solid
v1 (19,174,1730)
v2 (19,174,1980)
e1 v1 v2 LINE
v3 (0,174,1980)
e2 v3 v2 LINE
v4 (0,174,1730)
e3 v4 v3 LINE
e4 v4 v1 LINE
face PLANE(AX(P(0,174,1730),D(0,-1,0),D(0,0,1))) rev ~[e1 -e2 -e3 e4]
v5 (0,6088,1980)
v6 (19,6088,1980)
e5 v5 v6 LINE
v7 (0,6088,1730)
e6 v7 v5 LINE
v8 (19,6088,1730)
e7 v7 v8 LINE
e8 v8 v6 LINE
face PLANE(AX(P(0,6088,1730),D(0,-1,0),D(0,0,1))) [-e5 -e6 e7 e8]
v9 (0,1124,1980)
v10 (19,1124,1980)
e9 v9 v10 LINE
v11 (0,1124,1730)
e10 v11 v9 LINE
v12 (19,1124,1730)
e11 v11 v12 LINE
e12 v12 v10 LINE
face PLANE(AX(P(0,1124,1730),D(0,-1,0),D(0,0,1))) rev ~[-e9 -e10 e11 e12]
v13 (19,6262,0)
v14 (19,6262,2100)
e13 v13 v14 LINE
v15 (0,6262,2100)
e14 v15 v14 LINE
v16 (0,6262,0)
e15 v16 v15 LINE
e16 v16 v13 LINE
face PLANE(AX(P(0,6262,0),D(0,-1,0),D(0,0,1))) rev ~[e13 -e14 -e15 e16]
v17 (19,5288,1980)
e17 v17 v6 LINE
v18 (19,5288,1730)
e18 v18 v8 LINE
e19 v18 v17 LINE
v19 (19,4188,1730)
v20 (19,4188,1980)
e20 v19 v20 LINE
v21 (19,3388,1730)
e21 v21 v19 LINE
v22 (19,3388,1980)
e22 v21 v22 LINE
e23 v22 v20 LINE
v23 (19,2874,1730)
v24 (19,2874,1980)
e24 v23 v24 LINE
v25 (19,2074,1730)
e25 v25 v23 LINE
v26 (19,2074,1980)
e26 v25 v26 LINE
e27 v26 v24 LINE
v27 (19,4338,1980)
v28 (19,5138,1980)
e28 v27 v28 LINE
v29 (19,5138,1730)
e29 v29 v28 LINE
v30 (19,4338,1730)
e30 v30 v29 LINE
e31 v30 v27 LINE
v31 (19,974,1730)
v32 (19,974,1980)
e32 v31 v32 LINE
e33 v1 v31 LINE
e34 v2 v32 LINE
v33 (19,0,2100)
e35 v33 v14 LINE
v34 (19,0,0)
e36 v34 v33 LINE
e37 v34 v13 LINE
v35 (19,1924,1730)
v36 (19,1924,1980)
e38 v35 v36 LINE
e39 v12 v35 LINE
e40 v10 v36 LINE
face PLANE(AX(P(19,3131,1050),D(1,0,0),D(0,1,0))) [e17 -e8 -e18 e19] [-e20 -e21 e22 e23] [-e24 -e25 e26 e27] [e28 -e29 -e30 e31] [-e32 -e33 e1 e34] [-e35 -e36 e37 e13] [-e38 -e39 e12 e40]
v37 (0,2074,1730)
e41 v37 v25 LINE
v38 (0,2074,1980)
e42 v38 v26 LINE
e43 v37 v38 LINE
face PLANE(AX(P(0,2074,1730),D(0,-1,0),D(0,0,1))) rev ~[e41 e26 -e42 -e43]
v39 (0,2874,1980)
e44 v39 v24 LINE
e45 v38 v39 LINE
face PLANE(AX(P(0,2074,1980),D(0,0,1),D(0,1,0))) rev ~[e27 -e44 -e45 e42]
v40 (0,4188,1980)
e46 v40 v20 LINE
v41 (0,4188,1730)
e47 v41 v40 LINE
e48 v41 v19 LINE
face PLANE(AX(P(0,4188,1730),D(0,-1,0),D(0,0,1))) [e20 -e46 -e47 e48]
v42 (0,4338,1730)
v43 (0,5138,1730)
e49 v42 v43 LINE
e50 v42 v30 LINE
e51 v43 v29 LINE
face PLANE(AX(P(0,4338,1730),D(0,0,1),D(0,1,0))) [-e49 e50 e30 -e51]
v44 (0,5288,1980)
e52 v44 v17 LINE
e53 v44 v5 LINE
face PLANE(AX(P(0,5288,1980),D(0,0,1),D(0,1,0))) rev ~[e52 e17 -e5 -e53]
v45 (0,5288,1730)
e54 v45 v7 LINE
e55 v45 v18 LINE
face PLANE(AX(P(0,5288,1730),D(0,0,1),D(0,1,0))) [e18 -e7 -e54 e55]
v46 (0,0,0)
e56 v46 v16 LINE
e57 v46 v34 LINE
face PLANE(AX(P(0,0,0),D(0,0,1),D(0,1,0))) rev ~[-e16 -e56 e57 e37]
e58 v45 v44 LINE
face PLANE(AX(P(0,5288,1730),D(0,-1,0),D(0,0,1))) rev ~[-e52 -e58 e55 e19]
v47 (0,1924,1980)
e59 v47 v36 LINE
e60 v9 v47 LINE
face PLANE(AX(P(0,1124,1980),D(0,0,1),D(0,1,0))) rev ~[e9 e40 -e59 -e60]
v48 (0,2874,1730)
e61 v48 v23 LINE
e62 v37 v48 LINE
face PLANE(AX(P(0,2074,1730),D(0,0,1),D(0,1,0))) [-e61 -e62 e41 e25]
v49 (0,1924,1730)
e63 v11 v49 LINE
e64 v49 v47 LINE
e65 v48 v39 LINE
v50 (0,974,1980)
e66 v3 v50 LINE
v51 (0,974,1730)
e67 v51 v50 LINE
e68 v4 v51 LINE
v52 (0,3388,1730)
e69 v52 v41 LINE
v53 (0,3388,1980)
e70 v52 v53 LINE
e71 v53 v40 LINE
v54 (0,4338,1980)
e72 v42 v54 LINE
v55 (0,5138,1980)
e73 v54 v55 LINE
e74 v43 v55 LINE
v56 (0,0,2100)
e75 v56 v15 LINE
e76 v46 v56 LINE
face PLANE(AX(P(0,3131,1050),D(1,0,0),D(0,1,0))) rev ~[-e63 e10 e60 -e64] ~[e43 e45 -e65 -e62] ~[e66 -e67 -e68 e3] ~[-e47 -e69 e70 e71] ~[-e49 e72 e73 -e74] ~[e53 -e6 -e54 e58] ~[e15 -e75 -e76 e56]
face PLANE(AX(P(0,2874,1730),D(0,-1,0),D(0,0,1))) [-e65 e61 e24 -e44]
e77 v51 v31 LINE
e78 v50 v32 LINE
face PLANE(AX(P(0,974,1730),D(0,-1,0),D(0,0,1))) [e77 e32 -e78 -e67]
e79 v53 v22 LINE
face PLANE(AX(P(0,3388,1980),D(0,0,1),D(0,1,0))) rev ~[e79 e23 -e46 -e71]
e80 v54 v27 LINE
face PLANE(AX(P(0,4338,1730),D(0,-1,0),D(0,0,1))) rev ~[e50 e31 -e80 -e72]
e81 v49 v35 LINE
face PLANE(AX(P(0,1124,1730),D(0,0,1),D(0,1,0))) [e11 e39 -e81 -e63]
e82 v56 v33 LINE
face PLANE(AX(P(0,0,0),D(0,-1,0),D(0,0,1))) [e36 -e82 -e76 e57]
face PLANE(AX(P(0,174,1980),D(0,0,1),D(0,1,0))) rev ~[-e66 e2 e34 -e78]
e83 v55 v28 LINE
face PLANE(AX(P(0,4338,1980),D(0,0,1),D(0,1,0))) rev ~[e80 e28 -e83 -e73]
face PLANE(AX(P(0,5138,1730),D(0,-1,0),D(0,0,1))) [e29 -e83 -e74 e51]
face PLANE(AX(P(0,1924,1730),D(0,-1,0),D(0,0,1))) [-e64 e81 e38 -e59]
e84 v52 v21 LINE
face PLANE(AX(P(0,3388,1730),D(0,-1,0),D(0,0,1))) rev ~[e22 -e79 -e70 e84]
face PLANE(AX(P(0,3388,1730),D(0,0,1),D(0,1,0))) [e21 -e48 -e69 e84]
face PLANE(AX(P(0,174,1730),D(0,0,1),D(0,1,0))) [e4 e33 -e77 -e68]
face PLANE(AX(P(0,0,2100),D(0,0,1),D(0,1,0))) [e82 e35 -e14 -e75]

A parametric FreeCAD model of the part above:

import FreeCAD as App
import Part
import Sketcher

V = App.Vector
Q = App.Units.Quantity

doc = App.newDocument("Part")
params = doc.addObject("Spreadsheet::Sheet", "Params")
for row, (alias, value) in enumerate([
    ("sketch1_width", "6262 mm"),
    ("sketch1_width2", "800 mm"),
    ("sketch1_height", "2100 mm"),
    ("sketch1_height2", "250 mm"),
    ("pad1_length", "19 mm"),
], start=1):
    params.set(f"A{row}", alias)
    params.set(f"B{row}", "=" + value)
    params.setAlias(f"B{row}", alias)

body = doc.addObject("PartDesign::Body", "Body")

# Sketch on YZ plane
sketch1 = body.newObject("Sketcher::SketchObject", "Sketch")
sketch1.AttachmentSupport = (doc.getObject("YZ_Plane"), [""])
sketch1.MapMode = "FlatFace"
sketch1.addGeometry([
    Part.LineSegment(V(0, 2100, 0), V(0, 0, 0)),  # 0
    Part.LineSegment(V(0, 0, 0), V(6262, 0, 0)),  # 1
    Part.LineSegment(V(6262, 0, 0), V(6262, 2100, 0)),  # 2
    Part.LineSegment(V(6262, 2100, 0), V(0, 2100, 0)),  # 3
    Part.LineSegment(V(974, 1730, 0), V(174, 1730, 0)),  # 4
    Part.LineSegment(V(174, 1730, 0), V(174, 1980, 0)),  # 5
    Part.LineSegment(V(174, 1980, 0), V(974, 1980, 0)),  # 6
    Part.LineSegment(V(974, 1980, 0), V(974, 1730, 0)),  # 7
    Part.LineSegment(V(1924, 1730, 0), V(1124, 1730, 0)),  # 8
    Part.LineSegment(V(1124, 1730, 0), V(1124, 1980, 0)),  # 9
    Part.LineSegment(V(1124, 1980, 0), V(1924, 1980, 0)),  # 10
    Part.LineSegment(V(1924, 1980, 0), V(1924, 1730, 0)),  # 11
    Part.LineSegment(V(2874, 1730, 0), V(2074, 1730, 0)),  # 12
    Part.LineSegment(V(2074, 1730, 0), V(2074, 1980, 0)),  # 13
    Part.LineSegment(V(2074, 1980, 0), V(2874, 1980, 0)),  # 14
    Part.LineSegment(V(2874, 1980, 0), V(2874, 1730, 0)),  # 15
    Part.LineSegment(V(4188, 1730, 0), V(3388, 1730, 0)),  # 16
    Part.LineSegment(V(3388, 1730, 0), V(3388, 1980, 0)),  # 17
    Part.LineSegment(V(3388, 1980, 0), V(4188, 1980, 0)),  # 18
    Part.LineSegment(V(4188, 1980, 0), V(4188, 1730, 0)),  # 19
    Part.LineSegment(V(5138, 1730, 0), V(4338, 1730, 0)),  # 20
    Part.LineSegment(V(4338, 1730, 0), V(4338, 1980, 0)),  # 21
    Part.LineSegment(V(4338, 1980, 0), V(5138, 1980, 0)),  # 22
    Part.LineSegment(V(5138, 1980, 0), V(5138, 1730, 0)),  # 23
    Part.LineSegment(V(6088, 1730, 0), V(5288, 1730, 0)),  # 24
    Part.LineSegment(V(5288, 1730, 0), V(5288, 1980, 0)),  # 25
    Part.LineSegment(V(5288, 1980, 0), V(6088, 1980, 0)),  # 26
    Part.LineSegment(V(6088, 1980, 0), V(6088, 1730, 0)),  # 27
], False)
sketch1.addConstraint([
    Sketcher.Constraint("Coincident", 0, 2, 1, 1),
    Sketcher.Constraint("Coincident", 1, 2, 2, 1),
    Sketcher.Constraint("Coincident", 2, 2, 3, 1),
    Sketcher.Constraint("Coincident", 3, 2, 0, 1),
    Sketcher.Constraint("Coincident", 4, 2, 5, 1),
    Sketcher.Constraint("Coincident", 5, 2, 6, 1),
    Sketcher.Constraint("Coincident", 6, 2, 7, 1),
    Sketcher.Constraint("Coincident", 7, 2, 4, 1),
    Sketcher.Constraint("Coincident", 8, 2, 9, 1),
    Sketcher.Constraint("Coincident", 9, 2, 10, 1),
    Sketcher.Constraint("Coincident", 10, 2, 11, 1),
    Sketcher.Constraint("Coincident", 11, 2, 8, 1),
    Sketcher.Constraint("Coincident", 12, 2, 13, 1),
    Sketcher.Constraint("Coincident", 13, 2, 14, 1),
    Sketcher.Constraint("Coincident", 14, 2, 15, 1),
    Sketcher.Constraint("Coincident", 15, 2, 12, 1),
    Sketcher.Constraint("Coincident", 16, 2, 17, 1),
    Sketcher.Constraint("Coincident", 17, 2, 18, 1),
    Sketcher.Constraint("Coincident", 18, 2, 19, 1),
    Sketcher.Constraint("Coincident", 19, 2, 16, 1),
    Sketcher.Constraint("Coincident", 20, 2, 21, 1),
    Sketcher.Constraint("Coincident", 21, 2, 22, 1),
    Sketcher.Constraint("Coincident", 22, 2, 23, 1),
    Sketcher.Constraint("Coincident", 23, 2, 20, 1),
    Sketcher.Constraint("Coincident", 24, 2, 25, 1),
    Sketcher.Constraint("Coincident", 25, 2, 26, 1),
    Sketcher.Constraint("Coincident", 26, 2, 27, 1),
    Sketcher.Constraint("Coincident", 27, 2, 24, 1),
    Sketcher.Constraint("Vertical", 0),
    Sketcher.Constraint("Horizontal", 1),
    Sketcher.Constraint("Vertical", 2),
    Sketcher.Constraint("Horizontal", 3),
    Sketcher.Constraint("Horizontal", 4),
    Sketcher.Constraint("Vertical", 5),
    Sketcher.Constraint("Horizontal", 6),
    Sketcher.Constraint("Vertical", 7),
    Sketcher.Constraint("Horizontal", 8),
    Sketcher.Constraint("Vertical", 9),
    Sketcher.Constraint("Horizontal", 10),
    Sketcher.Constraint("Vertical", 11),
    Sketcher.Constraint("Horizontal", 12),
    Sketcher.Constraint("Vertical", 13),
    Sketcher.Constraint("Horizontal", 14),
    Sketcher.Constraint("Vertical", 15),
    Sketcher.Constraint("Horizontal", 16),
    Sketcher.Constraint("Vertical", 17),
    Sketcher.Constraint("Horizontal", 18),
    Sketcher.Constraint("Vertical", 19),
    Sketcher.Constraint("Horizontal", 20),
    Sketcher.Constraint("Vertical", 21),
    Sketcher.Constraint("Horizontal", 22),
    Sketcher.Constraint("Vertical", 23),
    Sketcher.Constraint("Horizontal", 24),
    Sketcher.Constraint("Vertical", 25),
    Sketcher.Constraint("Horizontal", 26),
    Sketcher.Constraint("Vertical", 27),
    Sketcher.Constraint("Coincident", 0, 2, -1, 1),
    Sketcher.Constraint("Horizontal", 7, 2, 8, 2),
    Sketcher.Constraint("Horizontal", 6, 2, 9, 2),
    Sketcher.Constraint("Horizontal", 11, 2, 12, 2),
    Sketcher.Constraint("Horizontal", 10, 2, 13, 2),
    Sketcher.Constraint("Horizontal", 15, 2, 16, 2),
    Sketcher.Constraint("Horizontal", 14, 2, 17, 2),
    Sketcher.Constraint("Horizontal", 19, 2, 20, 2),
    Sketcher.Constraint("Horizontal", 18, 2, 21, 2),
    Sketcher.Constraint("Horizontal", 23, 2, 24, 2),
    Sketcher.Constraint("Horizontal", 22, 2, 25, 2),
    Sketcher.Constraint("Equal", 6, 8),
    Sketcher.Constraint("Equal", 10, 12),
    Sketcher.Constraint("Equal", 14, 16),
    Sketcher.Constraint("Equal", 18, 20),
    Sketcher.Constraint("Equal", 22, 24),
    Sketcher.Constraint("DistanceX", 1, 1, 1, 2, Q("6262 mm")),
    Sketcher.Constraint("DistanceX", 4, 2, 4, 1, Q("800 mm")),
    Sketcher.Constraint("DistanceY", 0, 2, 0, 1, Q("2100 mm")),
    Sketcher.Constraint("DistanceY", 5, 1, 5, 2, Q("250 mm")),
    Sketcher.Constraint("DistanceX", -1, 1, 4, 2, Q("174 mm")),
    Sketcher.Constraint("DistanceY", -1, 1, 4, 2, Q("1730 mm")),
    Sketcher.Constraint("DistanceX", -1, 1, 8, 2, Q("1124 mm")),
    Sketcher.Constraint("DistanceX", -1, 1, 12, 2, Q("2074 mm")),
    Sketcher.Constraint("DistanceX", -1, 1, 16, 2, Q("3388 mm")),
    Sketcher.Constraint("DistanceX", -1, 1, 20, 2, Q("4338 mm")),
    Sketcher.Constraint("DistanceX", -1, 1, 24, 2, Q("5288 mm")),
])
sketch1.setExpression("Constraints[72]", "Params.sketch1_width")
sketch1.setExpression("Constraints[73]", "Params.sketch1_width2")
sketch1.setExpression("Constraints[74]", "Params.sketch1_height")
sketch1.setExpression("Constraints[75]", "Params.sketch1_height2")
pad1 = body.newObject("PartDesign::Pad", "Pad")
pad1.Profile = sketch1
pad1.setExpression("Length", "Params.pad1_length")

doc.recompute()
